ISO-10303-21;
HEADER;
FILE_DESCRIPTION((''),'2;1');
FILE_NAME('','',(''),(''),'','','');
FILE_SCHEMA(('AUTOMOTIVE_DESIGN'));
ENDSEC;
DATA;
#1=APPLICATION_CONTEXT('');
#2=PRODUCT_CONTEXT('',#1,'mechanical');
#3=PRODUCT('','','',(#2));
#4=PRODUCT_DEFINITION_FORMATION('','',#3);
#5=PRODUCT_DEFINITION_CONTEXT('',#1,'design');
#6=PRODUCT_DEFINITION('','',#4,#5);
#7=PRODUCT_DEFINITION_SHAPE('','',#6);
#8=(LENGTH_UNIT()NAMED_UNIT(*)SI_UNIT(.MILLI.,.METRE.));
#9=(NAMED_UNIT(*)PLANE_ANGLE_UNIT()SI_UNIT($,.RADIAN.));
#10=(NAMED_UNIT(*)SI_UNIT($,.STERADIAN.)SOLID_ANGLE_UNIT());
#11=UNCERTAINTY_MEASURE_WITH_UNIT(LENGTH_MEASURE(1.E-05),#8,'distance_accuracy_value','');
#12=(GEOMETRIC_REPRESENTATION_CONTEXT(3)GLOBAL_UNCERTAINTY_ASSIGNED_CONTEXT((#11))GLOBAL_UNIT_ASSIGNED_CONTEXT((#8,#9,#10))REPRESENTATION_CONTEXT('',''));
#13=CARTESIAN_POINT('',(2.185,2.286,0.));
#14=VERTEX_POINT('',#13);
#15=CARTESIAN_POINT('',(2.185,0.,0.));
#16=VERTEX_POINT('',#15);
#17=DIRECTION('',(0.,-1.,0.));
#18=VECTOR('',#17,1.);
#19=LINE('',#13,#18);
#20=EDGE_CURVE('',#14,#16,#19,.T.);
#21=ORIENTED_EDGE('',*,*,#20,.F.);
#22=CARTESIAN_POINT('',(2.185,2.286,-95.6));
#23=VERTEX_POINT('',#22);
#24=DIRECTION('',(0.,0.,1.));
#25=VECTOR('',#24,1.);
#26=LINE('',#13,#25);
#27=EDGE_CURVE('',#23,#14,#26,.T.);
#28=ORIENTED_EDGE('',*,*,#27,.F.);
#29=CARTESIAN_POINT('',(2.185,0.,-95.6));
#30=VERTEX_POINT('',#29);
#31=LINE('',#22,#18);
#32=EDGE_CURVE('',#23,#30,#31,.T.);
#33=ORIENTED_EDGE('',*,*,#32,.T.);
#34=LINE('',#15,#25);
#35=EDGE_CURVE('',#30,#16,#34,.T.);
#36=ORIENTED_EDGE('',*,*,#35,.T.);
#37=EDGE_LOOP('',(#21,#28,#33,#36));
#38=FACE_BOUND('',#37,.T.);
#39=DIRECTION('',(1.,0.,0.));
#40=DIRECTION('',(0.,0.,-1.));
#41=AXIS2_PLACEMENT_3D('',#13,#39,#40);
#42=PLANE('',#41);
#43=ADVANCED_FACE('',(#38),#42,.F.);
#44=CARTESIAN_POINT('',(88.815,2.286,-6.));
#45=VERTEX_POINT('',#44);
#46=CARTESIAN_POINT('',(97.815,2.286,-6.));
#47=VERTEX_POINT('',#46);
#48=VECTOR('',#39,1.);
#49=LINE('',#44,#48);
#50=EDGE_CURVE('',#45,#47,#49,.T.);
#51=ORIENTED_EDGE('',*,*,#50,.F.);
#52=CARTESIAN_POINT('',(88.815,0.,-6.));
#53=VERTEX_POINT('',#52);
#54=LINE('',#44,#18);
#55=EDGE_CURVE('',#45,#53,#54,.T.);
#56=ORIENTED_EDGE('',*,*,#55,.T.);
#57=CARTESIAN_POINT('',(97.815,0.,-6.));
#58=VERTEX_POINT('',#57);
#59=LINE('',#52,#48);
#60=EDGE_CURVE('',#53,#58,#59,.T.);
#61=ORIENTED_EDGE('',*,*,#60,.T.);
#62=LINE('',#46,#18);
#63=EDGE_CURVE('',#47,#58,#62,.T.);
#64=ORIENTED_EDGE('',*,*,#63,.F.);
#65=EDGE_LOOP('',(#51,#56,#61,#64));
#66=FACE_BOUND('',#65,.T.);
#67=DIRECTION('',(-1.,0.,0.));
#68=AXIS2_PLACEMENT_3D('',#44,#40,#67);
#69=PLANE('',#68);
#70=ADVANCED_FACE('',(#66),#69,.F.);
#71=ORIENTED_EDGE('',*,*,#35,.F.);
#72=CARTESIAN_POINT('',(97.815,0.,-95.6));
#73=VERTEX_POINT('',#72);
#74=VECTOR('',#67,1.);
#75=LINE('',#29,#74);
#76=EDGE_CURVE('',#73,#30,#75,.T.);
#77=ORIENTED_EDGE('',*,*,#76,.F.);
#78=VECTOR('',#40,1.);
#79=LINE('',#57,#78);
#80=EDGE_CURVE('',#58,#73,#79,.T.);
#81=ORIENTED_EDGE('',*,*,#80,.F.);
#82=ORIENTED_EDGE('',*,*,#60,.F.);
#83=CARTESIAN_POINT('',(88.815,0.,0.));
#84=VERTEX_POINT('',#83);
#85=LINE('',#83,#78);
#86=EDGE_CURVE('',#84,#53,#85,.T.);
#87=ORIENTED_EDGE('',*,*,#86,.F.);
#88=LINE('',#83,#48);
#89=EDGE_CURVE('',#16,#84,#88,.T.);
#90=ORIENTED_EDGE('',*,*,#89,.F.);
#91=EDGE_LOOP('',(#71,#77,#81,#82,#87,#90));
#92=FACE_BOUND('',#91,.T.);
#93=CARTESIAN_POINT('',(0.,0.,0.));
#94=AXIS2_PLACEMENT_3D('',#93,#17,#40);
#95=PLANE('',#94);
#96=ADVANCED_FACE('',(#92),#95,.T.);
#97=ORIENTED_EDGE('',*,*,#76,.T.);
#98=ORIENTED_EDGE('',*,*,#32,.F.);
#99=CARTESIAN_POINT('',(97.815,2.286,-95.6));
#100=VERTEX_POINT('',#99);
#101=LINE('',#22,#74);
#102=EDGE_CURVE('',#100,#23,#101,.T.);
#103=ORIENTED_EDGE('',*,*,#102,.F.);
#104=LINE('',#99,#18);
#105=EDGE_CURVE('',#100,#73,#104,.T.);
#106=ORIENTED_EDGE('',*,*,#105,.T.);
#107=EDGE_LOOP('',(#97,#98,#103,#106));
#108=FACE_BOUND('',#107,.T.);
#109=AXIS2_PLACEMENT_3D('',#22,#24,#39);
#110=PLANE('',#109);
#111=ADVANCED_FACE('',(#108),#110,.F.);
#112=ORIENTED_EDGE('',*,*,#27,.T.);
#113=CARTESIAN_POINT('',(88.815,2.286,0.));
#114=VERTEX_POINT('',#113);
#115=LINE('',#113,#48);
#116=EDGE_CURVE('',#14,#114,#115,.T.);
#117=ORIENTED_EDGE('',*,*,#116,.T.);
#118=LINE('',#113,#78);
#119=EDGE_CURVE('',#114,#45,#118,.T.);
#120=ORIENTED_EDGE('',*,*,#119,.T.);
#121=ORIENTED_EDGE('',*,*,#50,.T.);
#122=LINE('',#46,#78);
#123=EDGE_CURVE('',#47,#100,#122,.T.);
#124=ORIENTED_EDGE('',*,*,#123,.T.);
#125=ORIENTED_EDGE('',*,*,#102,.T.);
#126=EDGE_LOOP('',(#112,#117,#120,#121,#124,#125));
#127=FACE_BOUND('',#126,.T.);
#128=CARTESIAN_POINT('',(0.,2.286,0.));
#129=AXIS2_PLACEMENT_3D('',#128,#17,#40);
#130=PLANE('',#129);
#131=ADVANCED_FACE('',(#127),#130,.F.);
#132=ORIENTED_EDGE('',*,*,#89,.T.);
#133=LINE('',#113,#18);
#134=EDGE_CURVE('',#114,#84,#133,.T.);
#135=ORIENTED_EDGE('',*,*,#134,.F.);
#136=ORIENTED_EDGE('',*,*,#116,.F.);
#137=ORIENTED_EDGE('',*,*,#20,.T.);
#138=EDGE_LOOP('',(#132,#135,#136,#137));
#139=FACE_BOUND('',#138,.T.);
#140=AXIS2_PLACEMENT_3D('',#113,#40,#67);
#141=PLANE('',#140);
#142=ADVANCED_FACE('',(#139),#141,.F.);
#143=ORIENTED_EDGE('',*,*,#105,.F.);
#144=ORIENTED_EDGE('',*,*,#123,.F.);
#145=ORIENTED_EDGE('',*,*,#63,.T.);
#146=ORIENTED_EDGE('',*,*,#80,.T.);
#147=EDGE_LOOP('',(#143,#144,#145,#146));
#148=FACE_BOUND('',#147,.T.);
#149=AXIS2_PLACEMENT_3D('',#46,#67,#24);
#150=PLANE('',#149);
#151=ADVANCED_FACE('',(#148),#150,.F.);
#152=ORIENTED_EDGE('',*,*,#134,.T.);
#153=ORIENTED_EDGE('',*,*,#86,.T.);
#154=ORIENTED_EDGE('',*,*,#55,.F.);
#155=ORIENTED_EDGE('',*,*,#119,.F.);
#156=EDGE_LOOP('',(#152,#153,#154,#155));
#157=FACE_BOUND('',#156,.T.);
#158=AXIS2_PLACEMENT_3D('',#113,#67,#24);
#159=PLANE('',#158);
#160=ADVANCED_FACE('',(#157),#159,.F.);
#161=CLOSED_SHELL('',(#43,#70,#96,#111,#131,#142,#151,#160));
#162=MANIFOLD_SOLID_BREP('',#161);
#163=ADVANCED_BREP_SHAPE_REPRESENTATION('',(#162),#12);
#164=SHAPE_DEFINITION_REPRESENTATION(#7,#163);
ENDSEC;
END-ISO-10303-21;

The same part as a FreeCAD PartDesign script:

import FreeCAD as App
import Part
import Sketcher
from FreeCAD import Vector
Q = App.Units.Quantity


def add_polygon(sketch, points):
    """Adds a closed chain of lines whose ends are joined by coincident constraints."""
    first, n = sketch.GeometryCount, len(points)
    for a, b in zip(points, points[1:] + points[:1]):
        sketch.addGeometry(Part.LineSegment(App.Vector(*a, 0), App.Vector(*b, 0)), False)
    for i in range(n):
        sketch.addConstraint(Sketcher.Constraint("Coincident", first + i, 2, first + (i + 1) % n, 1))

doc = App.newDocument("Part")
body = doc.addObject("PartDesign::Body", "Body")

# Sketch on XZ plane
sketch1 = doc.addObject("Sketcher::SketchObject", "Sketch")
body.addObject(sketch1)
sketch1.AttachmentSupport = (doc.XZ_Plane, [""])
sketch1.MapMode = "FlatFace"
add_polygon(sketch1, [(88.815, 0), (88.815, -6), (97.815, -6), (97.815, -95.6), (2.185, -95.6), (2.185, 0)])  # lines 0-5
sketch1.addConstraint([
    Sketcher.Constraint("Vertical", 0),
    Sketcher.Constraint("Horizontal", 1),
    Sketcher.Constraint("Vertical", 2),
    Sketcher.Constraint("Horizontal", 3),
    Sketcher.Constraint("Vertical", 4),
    Sketcher.Constraint("Horizontal", 5),
    Sketcher.Constraint("PointOnObject", 4, 2, -1),
    Sketcher.Constraint("DistanceX", 1, 1, 1, 2, Q("9 mm")),
    Sketcher.Constraint("DistanceY", 0, 2, 0, 1, Q("6 mm")),
    Sketcher.Constraint("DistanceY", 2, 2, 2, 1, Q("89.6 mm")),
    Sketcher.Constraint("DistanceX", 3, 2, 3, 1, Q("95.63 mm")),
    Sketcher.Constraint("DistanceX", -1, 1, 0, 2, Q("88.815 mm")),
])
pad1 = doc.addObject("PartDesign::Pad", "Pad")
body.addObject(pad1)
pad1.Profile = sketch1
pad1.Length = 2.286
pad1.Reversed = True

doc.recompute()
